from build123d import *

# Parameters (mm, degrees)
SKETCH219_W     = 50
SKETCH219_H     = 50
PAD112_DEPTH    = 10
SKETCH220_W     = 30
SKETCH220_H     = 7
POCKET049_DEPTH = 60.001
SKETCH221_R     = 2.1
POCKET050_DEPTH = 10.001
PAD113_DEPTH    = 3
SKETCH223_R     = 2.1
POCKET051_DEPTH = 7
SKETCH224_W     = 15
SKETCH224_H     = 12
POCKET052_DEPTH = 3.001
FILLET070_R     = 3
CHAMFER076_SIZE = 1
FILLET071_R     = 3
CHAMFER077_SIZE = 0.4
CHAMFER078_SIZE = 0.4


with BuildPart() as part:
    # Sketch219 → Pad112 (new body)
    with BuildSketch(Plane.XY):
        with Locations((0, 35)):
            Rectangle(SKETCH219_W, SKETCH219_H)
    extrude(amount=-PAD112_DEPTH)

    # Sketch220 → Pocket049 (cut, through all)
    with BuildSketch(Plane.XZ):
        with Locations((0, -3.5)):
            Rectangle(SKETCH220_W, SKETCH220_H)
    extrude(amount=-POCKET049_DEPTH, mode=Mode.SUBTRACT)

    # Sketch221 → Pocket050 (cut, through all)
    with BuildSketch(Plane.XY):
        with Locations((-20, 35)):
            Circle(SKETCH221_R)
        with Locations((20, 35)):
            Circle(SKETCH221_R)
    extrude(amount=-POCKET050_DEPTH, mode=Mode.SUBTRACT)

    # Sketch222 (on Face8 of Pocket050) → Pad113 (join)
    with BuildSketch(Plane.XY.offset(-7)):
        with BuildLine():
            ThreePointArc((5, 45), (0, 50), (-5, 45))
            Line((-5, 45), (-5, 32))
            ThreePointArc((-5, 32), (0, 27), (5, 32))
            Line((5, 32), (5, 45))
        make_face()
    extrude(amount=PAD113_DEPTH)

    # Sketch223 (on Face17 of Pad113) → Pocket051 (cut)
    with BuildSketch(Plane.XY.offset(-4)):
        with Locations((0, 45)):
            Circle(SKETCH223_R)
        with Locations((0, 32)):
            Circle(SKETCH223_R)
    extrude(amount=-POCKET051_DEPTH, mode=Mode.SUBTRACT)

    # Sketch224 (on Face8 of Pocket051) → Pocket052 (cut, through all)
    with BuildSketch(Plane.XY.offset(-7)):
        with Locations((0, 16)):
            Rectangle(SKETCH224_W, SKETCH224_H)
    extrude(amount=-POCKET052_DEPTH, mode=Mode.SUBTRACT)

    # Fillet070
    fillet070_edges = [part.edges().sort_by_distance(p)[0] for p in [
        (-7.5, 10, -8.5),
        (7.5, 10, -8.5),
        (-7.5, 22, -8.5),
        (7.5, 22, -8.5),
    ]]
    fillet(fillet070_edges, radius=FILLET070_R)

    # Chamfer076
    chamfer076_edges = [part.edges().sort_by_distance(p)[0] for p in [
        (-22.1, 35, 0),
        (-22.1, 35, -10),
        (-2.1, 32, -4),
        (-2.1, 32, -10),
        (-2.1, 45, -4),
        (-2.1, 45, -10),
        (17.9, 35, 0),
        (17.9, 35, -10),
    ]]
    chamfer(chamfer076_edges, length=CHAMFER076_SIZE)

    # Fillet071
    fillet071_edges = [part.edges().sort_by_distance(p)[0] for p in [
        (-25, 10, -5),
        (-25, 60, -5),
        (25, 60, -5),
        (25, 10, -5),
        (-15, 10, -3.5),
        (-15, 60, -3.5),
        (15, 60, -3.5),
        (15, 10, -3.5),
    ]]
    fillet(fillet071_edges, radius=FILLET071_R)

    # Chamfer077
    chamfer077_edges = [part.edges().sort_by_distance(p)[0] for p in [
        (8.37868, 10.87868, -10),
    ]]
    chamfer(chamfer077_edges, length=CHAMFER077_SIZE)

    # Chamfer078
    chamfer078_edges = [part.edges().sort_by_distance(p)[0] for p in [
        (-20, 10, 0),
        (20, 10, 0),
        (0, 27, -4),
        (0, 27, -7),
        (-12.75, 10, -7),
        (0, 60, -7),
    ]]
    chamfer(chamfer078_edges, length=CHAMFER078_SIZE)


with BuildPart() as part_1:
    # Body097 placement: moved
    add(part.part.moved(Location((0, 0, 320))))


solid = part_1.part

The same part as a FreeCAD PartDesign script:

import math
import FreeCAD as App
import Part
import Sketcher
from FreeCAD import Vector
Q = App.Units.Quantity


def edges_at(feature, points):
    """Names of the edges that pass closest to the given points."""
    edges = feature.Shape.Edges
    near = lambda p: min(range(len(edges)), key=lambda i: edges[i].distToShape(Part.Vertex(*p))[0])
    return sorted({f"Edge{near(p) + 1}" for p in points})

doc = App.newDocument("Part")
body = doc.addObject("PartDesign::Body", "Body")

# Sketch on XY plane
sketch1 = body.newObject("Sketcher::SketchObject", "Sketch")
sketch1.AttachmentSupport = (doc.getObject("XY_Plane"), [""])
sketch1.MapMode = "FlatFace"
sketch1.addGeometry(Part.LineSegment(Vector(-25, 60, 0), Vector(-25, 10, 0)), False)
sketch1.addGeometry(Part.LineSegment(Vector(-25, 10, 0), Vector(25, 10, 0)), False)
sketch1.addGeometry(Part.LineSegment(Vector(25, 10, 0), Vector(25, 60, 0)), False)
sketch1.addGeometry(Part.LineSegment(Vector(25, 60, 0), Vector(-25, 60, 0)), False)
sketch1.addConstraint(Sketcher.Constraint("Coincident", 0, 2, 1, 1))
sketch1.addConstraint(Sketcher.Constraint("Coincident", 1, 2, 2, 1))
sketch1.addConstraint(Sketcher.Constraint("Coincident", 2, 2, 3, 1))
sketch1.addConstraint(Sketcher.Constraint("Coincident", 3, 2, 0, 1))
sketch1.addConstraint(Sketcher.Constraint("Vertical", 0))
sketch1.addConstraint(Sketcher.Constraint("Horizontal", 1))
sketch1.addConstraint(Sketcher.Constraint("Vertical", 2))
sketch1.addConstraint(Sketcher.Constraint("Horizontal", 3))
sketch1.addConstraint(Sketcher.Constraint("Equal", 3, 0))
sketch1.addConstraint(Sketcher.Constraint("DistanceX", 1, 1, 1, 2, Q("50 mm")))
sketch1.addConstraint(Sketcher.Constraint("DistanceX", 0, 2, -1, 1, Q("25 mm")))
sketch1.addConstraint(Sketcher.Constraint("DistanceY", -1, 1, 0, 2, Q("10 mm")))
pad1 = body.newObject("PartDesign::Pad", "Pad")
pad1.Profile = sketch1
pad1.Length = 10
pad1.Reversed = True

# Sketch on XZ plane
sketch2 = body.newObject("Sketcher::SketchObject", "Sketch001")
sketch2.AttachmentSupport = (doc.getObject("XZ_Plane"), [""])
sketch2.MapMode = "FlatFace"
sketch2.addGeometry(Part.LineSegment(Vector(-15, 0, 0), Vector(-15, -7, 0)), False)
sketch2.addGeometry(Part.LineSegment(Vector(-15, -7, 0), Vector(15, -7, 0)), False)
sketch2.addGeometry(Part.LineSegment(Vector(15, -7, 0), Vector(15, 0, 0)), False)
sketch2.addGeometry(Part.LineSegment(Vector(15, 0, 0), Vector(-15, 0, 0)), False)
sketch2.addConstraint(Sketcher.Constraint("Coincident", 0, 2, 1, 1))
sketch2.addConstraint(Sketcher.Constraint("Coincident", 1, 2, 2, 1))
sketch2.addConstraint(Sketcher.Constraint("Coincident", 2, 2, 3, 1))
sketch2.addConstraint(Sketcher.Constraint("Coincident", 3, 2, 0, 1))
sketch2.addConstraint(Sketcher.Constraint("Vertical", 0))
sketch2.addConstraint(Sketcher.Constraint("Horizontal", 1))
sketch2.addConstraint(Sketcher.Constraint("Vertical", 2))
sketch2.addConstraint(Sketcher.Constraint("Horizontal", 3))
sketch2.addConstraint(Sketcher.Constraint("Symmetric", 2, 2, 3, 2, -1, 1))
sketch2.addConstraint(Sketcher.Constraint("DistanceX", 1, 1, 1, 2, Q("30 mm")))
sketch2.addConstraint(Sketcher.Constraint("DistanceY", 0, 2, 0, 1, Q("7 mm")))
pocket1 = body.newObject("PartDesign::Pocket", "Pocket")
pocket1.Profile = sketch2
pocket1.Type = "ThroughAll"

# Sketch on XY plane
sketch3 = body.newObject("Sketcher::SketchObject", "Sketch002")
sketch3.AttachmentSupport = (doc.getObject("XY_Plane"), [""])
sketch3.MapMode = "FlatFace"
sketch3.addGeometry(Part.Circle(Vector(-20, 35, 0), Vector(0, 0, 1), 2.1), False)
sketch3.addGeometry(Part.Circle(Vector(20, 35, 0), Vector(0, 0, 1), 2.1), False)
sketch3.addConstraint(Sketcher.Constraint("Equal", 0, 1))
sketch3.addConstraint(Sketcher.Constraint("Symmetric", 0, 3, 1, 3, -2))
sketch3.addConstraint(Sketcher.Constraint("Diameter", 0, Q("4.2 mm")))
sketch3.addConstraint(Sketcher.Constraint("DistanceX", 0, 3, -1, 1, Q("20 mm")))
sketch3.addConstraint(Sketcher.Constraint("DistanceY", -1, 1, 0, 3, Q("35 mm")))
pocket2 = body.newObject("PartDesign::Pocket", "Pocket001")
pocket2.Profile = sketch3
pocket2.Type = "ThroughAll"

# Sketch on XY plane
sketch4 = body.newObject("Sketcher::SketchObject", "Sketch003")
sketch4.AttachmentSupport = (doc.getObject("XY_Plane"), [""])
sketch4.MapMode = "FlatFace"
sketch4.AttachmentOffset = App.Placement(Vector(0, 0, -7), App.Rotation())
sketch4.addGeometry(Part.ArcOfCircle(Part.Circle(Vector(0, 45, 0), Vector(0, 0, 1), 5), math.radians(0), math.radians(180)), False)
sketch4.addGeometry(Part.LineSegment(Vector(-5, 45, 0), Vector(-5, 32, 0)), False)
sketch4.addGeometry(Part.ArcOfCircle(Part.Circle(Vector(0, 32, 0), Vector(0, 0, 1), 5), math.radians(180), math.radians(360)), False)
sketch4.addGeometry(Part.LineSegment(Vector(5, 32, 0), Vector(5, 45, 0)), False)
sketch4.addConstraint(Sketcher.Constraint("Tangent", 0, 2, 1, 1))
sketch4.addConstraint(Sketcher.Constraint("Tangent", 1, 2, 2, 1))
sketch4.addConstraint(Sketcher.Constraint("Tangent", 2, 2, 3, 1))
sketch4.addConstraint(Sketcher.Constraint("Tangent", 3, 2, 0, 1))
sketch4.addConstraint(Sketcher.Constraint("Vertical", 1))
sketch4.addConstraint(Sketcher.Constraint("Vertical", 3))
sketch4.addConstraint(Sketcher.Constraint("PointOnObject", 0, 3, -2))
sketch4.addConstraint(Sketcher.Constraint("Radius", 0, Q("5 mm")))
sketch4.addConstraint(Sketcher.Constraint("DistanceY", 1, 2, 1, 1, Q("13 mm")))
sketch4.addConstraint(Sketcher.Constraint("DistanceY", -1, 1, 0, 3, Q("45 mm")))
pad2 = body.newObject("PartDesign::Pad", "Pad001")
pad2.Profile = sketch4
pad2.Length = 3

# Sketch on XY plane
sketch5 = body.newObject("Sketcher::SketchObject", "Sketch004")
sketch5.AttachmentSupport = (doc.getObject("XY_Plane"), [""])
sketch5.MapMode = "FlatFace"
sketch5.AttachmentOffset = App.Placement(Vector(0, 0, -4), App.Rotation())
sketch5.addGeometry(Part.Circle(Vector(0, 45, 0), Vector(0, 0, 1), 2.1), False)
sketch5.addGeometry(Part.Circle(Vector(0, 32, 0), Vector(0, 0, 1), 2.1), False)
sketch5.addConstraint(Sketcher.Constraint("Equal", 0, 1))
sketch5.addConstraint(Sketcher.Constraint("PointOnObject", 0, 3, -2))
sketch5.addConstraint(Sketcher.Constraint("PointOnObject", 1, 3, -2))
sketch5.addConstraint(Sketcher.Constraint("Diameter", 0, Q("4.2 mm")))
sketch5.addConstraint(Sketcher.Constraint("DistanceY", -1, 1, 0, 3, Q("45 mm")))
sketch5.addConstraint(Sketcher.Constraint("DistanceY", -1, 1, 1, 3, Q("32 mm")))
pocket3 = body.newObject("PartDesign::Pocket", "Pocket002")
pocket3.Profile = sketch5
pocket3.Length = 7

# Sketch on XY plane
sketch6 = body.newObject("Sketcher::SketchObject", "Sketch005")
sketch6.AttachmentSupport = (doc.getObject("XY_Plane"), [""])
sketch6.MapMode = "FlatFace"
sketch6.AttachmentOffset = App.Placement(Vector(0, 0, -7), App.Rotation())
sketch6.addGeometry(Part.LineSegment(Vector(-8, 22, 0), Vector(-8, 10, 0)), False)
sketch6.addGeometry(Part.LineSegment(Vector(-8, 10, 0), Vector(8, 10, 0)), False)
sketch6.addGeometry(Part.LineSegment(Vector(8, 10, 0), Vector(8, 22, 0)), False)
sketch6.addGeometry(Part.LineSegment(Vector(8, 22, 0), Vector(-8, 22, 0)), False)
sketch6.addConstraint(Sketcher.Constraint("Coincident", 0, 2, 1, 1))
sketch6.addConstraint(Sketcher.Constraint("Coincident", 1, 2, 2, 1))
sketch6.addConstraint(Sketcher.Constraint("Coincident", 2, 2, 3, 1))
sketch6.addConstraint(Sketcher.Constraint("Coincident", 3, 2, 0, 1))
sketch6.addConstraint(Sketcher.Constraint("Vertical", 0))
sketch6.addConstraint(Sketcher.Constraint("Horizontal", 1))
sketch6.addConstraint(Sketcher.Constraint("Vertical", 2))
sketch6.addConstraint(Sketcher.Constraint("Horizontal", 3))
sketch6.addConstraint(Sketcher.Constraint("DistanceX", 1, 1, 1, 2, Q("15 mm")))
sketch6.addConstraint(Sketcher.Constraint("DistanceY", 0, 2, 0, 1, Q("12 mm")))
sketch6.addConstraint(Sketcher.Constraint("DistanceY", -1, 1, 0, 2, Q("10 mm")))
sketch6.addConstraint(Sketcher.Constraint("DistanceX", 0, 2, -1, 1, Q("7.5 mm")))
pocket4 = body.newObject("PartDesign::Pocket", "Pocket003")
pocket4.Profile = sketch6
pocket4.Type = "ThroughAll"
doc.recompute()

fillet = body.newObject("PartDesign::Fillet", "Fillet")
fillet.Base = (pocket4, edges_at(pocket4, [
    (-7.5, 10, -8.5),
    (7.5, 10, -8.5),
    (-7.5, 22, -8.5),
    (7.5, 22, -8.5),
]))
fillet.Radius = 3
doc.recompute()

chamfer = body.newObject("PartDesign::Chamfer", "Chamfer")
chamfer.Base = (fillet, edges_at(fillet, [
    (-22.1, 35, 0),
    (-22.1, 35, -10),
    (-2.1, 32, -4),
    (-2.1, 32, -10),
    (-2.1, 45, -4),
    (-2.1, 45, -10),
    (17.9, 35, 0),
    (17.9, 35, -10),
]))
chamfer.Size = 1
doc.recompute()

fillet2 = body.newObject("PartDesign::Fillet", "Fillet001")
fillet2.Base = (chamfer, edges_at(chamfer, [
    (-25, 10, -5),
    (-25, 60, -5),
    (25, 60, -5),
    (25, 10, -5),
    (-15, 10, -3.5),
    (-15, 60, -3.5),
    (15, 60, -3.5),
    (15, 10, -3.5),
]))
fillet2.Radius = 3
doc.recompute()

chamfer2 = body.newObject("PartDesign::Chamfer", "Chamfer001")
chamfer2.Base = (fillet2, edges_at(fillet2, [(8.379, 10.879, -10)]))
chamfer2.Size = 0.4
doc.recompute()

chamfer3 = body.newObject("PartDesign::Chamfer", "Chamfer002")
chamfer3.Base = (chamfer2, edges_at(chamfer2, [
    (-20, 10, 0),
    (20, 10, 0),
    (0, 27, -4),
    (0, 27, -7),
    (-14.25, 10, -7),
    (0, 60, -7),
]))
chamfer3.Size = 0.4
body2 = doc.addObject("PartDesign::Body", "Body001")
doc.recompute()

body.Placement = App.Placement(Vector(0, 0, 320), App.Rotation(Vector(0, 0, 1), 0))
boolean = body2.newObject("PartDesign::Boolean", "Boolean")
boolean.Type = "Fuse"
boolean.addObjects([body])

doc.recompute()
